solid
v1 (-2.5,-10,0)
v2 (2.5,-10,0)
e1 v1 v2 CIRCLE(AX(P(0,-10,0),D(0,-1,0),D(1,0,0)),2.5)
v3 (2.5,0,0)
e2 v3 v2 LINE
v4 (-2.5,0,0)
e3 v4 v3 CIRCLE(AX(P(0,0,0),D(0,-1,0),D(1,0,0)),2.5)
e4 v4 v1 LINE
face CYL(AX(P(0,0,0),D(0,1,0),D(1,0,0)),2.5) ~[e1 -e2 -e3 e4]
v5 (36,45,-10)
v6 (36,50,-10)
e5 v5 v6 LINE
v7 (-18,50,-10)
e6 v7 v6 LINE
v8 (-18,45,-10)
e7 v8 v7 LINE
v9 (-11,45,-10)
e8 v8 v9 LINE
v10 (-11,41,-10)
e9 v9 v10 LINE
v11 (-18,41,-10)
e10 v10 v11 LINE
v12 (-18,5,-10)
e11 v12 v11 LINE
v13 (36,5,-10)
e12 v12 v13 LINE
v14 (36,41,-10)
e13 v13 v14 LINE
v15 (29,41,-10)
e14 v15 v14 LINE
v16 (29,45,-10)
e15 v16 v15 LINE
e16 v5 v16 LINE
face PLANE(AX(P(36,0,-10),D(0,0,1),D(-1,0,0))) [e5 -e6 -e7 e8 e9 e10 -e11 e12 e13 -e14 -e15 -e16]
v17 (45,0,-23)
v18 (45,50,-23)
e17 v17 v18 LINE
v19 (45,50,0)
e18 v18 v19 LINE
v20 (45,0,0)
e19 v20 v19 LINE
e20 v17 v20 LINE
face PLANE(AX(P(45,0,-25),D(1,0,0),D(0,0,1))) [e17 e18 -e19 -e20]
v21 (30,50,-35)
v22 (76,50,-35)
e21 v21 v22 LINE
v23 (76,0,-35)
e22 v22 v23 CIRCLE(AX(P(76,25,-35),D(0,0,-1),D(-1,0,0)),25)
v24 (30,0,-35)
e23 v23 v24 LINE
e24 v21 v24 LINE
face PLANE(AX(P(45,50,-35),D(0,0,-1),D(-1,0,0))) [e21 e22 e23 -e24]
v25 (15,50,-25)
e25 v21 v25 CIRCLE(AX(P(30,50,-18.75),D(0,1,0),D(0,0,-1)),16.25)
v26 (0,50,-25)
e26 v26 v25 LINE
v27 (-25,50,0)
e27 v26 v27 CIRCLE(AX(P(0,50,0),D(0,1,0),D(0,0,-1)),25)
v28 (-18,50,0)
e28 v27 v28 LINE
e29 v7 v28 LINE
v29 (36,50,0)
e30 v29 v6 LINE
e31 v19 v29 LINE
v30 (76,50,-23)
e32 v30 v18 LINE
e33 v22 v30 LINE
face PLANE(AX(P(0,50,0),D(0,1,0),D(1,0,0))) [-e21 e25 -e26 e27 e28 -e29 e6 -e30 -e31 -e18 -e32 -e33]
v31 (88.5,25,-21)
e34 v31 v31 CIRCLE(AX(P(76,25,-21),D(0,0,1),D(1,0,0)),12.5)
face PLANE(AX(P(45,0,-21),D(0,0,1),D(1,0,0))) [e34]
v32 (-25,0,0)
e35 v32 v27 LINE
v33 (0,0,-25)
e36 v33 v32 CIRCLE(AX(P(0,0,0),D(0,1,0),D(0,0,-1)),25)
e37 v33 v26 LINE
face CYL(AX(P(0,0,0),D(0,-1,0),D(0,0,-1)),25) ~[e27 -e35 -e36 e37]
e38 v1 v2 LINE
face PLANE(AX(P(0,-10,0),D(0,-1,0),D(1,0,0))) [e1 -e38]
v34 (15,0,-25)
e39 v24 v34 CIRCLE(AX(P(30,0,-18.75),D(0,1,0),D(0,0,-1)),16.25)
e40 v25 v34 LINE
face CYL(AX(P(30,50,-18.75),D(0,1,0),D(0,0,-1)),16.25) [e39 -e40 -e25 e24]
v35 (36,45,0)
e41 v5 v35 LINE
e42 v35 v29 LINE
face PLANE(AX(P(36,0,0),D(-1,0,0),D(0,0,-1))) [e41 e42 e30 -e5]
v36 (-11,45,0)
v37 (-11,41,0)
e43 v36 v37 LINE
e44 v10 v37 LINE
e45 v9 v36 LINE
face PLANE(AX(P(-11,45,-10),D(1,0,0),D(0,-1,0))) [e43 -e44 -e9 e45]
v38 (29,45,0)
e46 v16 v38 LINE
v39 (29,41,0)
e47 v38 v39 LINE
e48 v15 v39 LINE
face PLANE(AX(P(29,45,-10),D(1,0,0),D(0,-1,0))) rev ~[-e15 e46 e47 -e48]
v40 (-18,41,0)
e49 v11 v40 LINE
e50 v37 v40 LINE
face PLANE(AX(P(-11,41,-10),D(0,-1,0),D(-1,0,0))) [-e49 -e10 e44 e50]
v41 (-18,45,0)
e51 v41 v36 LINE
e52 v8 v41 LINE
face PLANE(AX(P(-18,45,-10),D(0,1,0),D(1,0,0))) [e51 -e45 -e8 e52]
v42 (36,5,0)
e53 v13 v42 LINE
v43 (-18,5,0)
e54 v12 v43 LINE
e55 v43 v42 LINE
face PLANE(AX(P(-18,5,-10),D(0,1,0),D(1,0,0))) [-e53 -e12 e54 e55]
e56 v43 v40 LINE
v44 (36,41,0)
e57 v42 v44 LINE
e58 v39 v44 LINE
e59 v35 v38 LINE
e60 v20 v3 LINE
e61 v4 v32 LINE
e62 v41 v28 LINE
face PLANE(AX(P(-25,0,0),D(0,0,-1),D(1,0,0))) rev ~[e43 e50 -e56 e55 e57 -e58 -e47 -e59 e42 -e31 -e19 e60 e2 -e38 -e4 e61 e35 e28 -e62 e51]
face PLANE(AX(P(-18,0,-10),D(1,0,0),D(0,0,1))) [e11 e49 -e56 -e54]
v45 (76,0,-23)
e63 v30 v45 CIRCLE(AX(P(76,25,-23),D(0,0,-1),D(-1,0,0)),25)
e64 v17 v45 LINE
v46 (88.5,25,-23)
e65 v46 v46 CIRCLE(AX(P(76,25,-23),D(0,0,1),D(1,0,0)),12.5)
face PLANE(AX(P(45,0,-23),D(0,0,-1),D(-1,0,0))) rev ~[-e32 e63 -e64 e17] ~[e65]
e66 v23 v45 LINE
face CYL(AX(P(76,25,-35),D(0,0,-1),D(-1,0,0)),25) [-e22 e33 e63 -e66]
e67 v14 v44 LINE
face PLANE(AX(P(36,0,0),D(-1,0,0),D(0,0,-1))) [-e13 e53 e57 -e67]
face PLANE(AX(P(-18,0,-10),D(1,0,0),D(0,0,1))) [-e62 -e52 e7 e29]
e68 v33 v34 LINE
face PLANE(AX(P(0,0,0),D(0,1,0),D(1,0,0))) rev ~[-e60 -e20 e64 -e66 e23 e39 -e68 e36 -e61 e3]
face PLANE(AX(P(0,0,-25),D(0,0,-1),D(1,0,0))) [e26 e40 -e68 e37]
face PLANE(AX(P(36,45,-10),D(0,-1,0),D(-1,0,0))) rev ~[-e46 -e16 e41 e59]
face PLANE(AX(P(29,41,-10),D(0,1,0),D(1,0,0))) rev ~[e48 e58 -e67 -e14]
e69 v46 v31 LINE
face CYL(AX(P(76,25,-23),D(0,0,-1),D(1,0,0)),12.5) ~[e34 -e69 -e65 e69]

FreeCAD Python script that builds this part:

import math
import FreeCAD as App
import Part
import Sketcher
from FreeCAD import Vector

doc = App.newDocument("Part")
body = doc.addObject("PartDesign::Body", "Body")

# Sketch on XZ plane
sketch1 = body.newObject("Sketcher::SketchObject", "Sketch")
sketch1.AttachmentSupport = (doc.getObject("XZ_Plane"), [""])
sketch1.MapMode = "FlatFace"
sketch1.addGeometry(Part.LineSegment(Vector(45, -25, 0), Vector(0, -25, 0)), False)
sketch1.addGeometry(Part.ArcOfCircle(Part.Circle(Vector(0, 0, 0), Vector(0, 0, 1), 25), math.radians(180), math.radians(270)), False)
sketch1.addGeometry(Part.LineSegment(Vector(-25, 0, 0), Vector(-18, 0, 0)), False)
sketch1.addGeometry(Part.LineSegment(Vector(-18, 0, 0), Vector(-18, -10, 0)), False)
sketch1.addGeometry(Part.LineSegment(Vector(-18, -10, 0), Vector(36, -10, 0)), False)
sketch1.addGeometry(Part.LineSegment(Vector(36, -10, 0), Vector(36, 0, 0)), False)
sketch1.addGeometry(Part.LineSegment(Vector(36, 0, 0), Vector(45, 0, 0)), False)
sketch1.addGeometry(Part.LineSegment(Vector(45, 0, 0), Vector(45, -25, 0)), False)
sketch1.addConstraint(Sketcher.Constraint("Tangent", 0, 2, 1, 2))
sketch1.addConstraint(Sketcher.Constraint("Coincident", 1, 1, 2, 1))
sketch1.addConstraint(Sketcher.Constraint("Coincident", 2, 2, 3, 1))
sketch1.addConstraint(Sketcher.Constraint("Coincident", 3, 2, 4, 1))
sketch1.addConstraint(Sketcher.Constraint("Coincident", 4, 2, 5, 1))
sketch1.addConstraint(Sketcher.Constraint("Coincident", 5, 2, 6, 1))
sketch1.addConstraint(Sketcher.Constraint("Coincident", 6, 2, 7, 1))
sketch1.addConstraint(Sketcher.Constraint("Coincident", 7, 2, 0, 1))
sketch1.addConstraint(Sketcher.Constraint("Horizontal", 0))
sketch1.addConstraint(Sketcher.Constraint("Horizontal", 2))
sketch1.addConstraint(Sketcher.Constraint("Vertical", 3))
sketch1.addConstraint(Sketcher.Constraint("Horizontal", 4))
sketch1.addConstraint(Sketcher.Constraint("Vertical", 5))
sketch1.addConstraint(Sketcher.Constraint("Horizontal", 6))
sketch1.addConstraint(Sketcher.Constraint("Vertical", 7))
sketch1.addConstraint(Sketcher.Constraint("Coincident", 1, 3, -1, 1))
sketch1.addConstraint(Sketcher.Constraint("PointOnObject", 1, 1, -1))
sketch1.addConstraint(Sketcher.Constraint("PointOnObject", 5, 2, -1))
sketch1.addConstraint(Sketcher.Constraint("Radius", 1, 25.0))
sketch1.addConstraint(Sketcher.Constraint("DistanceX", 0, 2, 0, 1, 45.0))
sketch1.addConstraint(Sketcher.Constraint("DistanceX", 2, 1, 2, 2, 7.0))
sketch1.addConstraint(Sketcher.Constraint("DistanceX", 4, 1, 4, 2, 54.0))
sketch1.addConstraint(Sketcher.Constraint("DistanceY", 3, 2, 3, 1, 10.0))
pad1 = body.newObject("PartDesign::Pad", "Pad")
pad1.Profile = sketch1
pad1.Length = 50
pad1.Reversed = True

# Sketch on XY plane
sketch2 = body.newObject("Sketcher::SketchObject", "Sketch001")
sketch2.AttachmentSupport = (doc.getObject("XY_Plane"), [""])
sketch2.MapMode = "FlatFace"
sketch2.AttachmentOffset = App.Placement(Vector(0, 0, -10), App.Rotation())
sketch2.addGeometry(Part.LineSegment(Vector(36, 5, 0), Vector(-18, 5, 0)), False)
sketch2.addGeometry(Part.LineSegment(Vector(-18, 5, 0), Vector(-18, 0, 0)), False)
sketch2.addGeometry(Part.LineSegment(Vector(-18, 0, 0), Vector(36, 0, 0)), False)
sketch2.addGeometry(Part.LineSegment(Vector(36, 0, 0), Vector(36, 5, 0)), False)
sketch2.addGeometry(Part.LineSegment(Vector(-18, 41, 0), Vector(-11, 41, 0)), False)
sketch2.addGeometry(Part.LineSegment(Vector(-11, 41, 0), Vector(-11, 45, 0)), False)
sketch2.addGeometry(Part.LineSegment(Vector(-11, 45, 0), Vector(-18, 45, 0)), False)
sketch2.addGeometry(Part.LineSegment(Vector(-18, 45, 0), Vector(-18, 41, 0)), False)
sketch2.addGeometry(Part.LineSegment(Vector(29, 45, 0), Vector(29, 41, 0)), False)
sketch2.addGeometry(Part.LineSegment(Vector(29, 41, 0), Vector(36, 41, 0)), False)
sketch2.addGeometry(Part.LineSegment(Vector(36, 41, 0), Vector(36, 45, 0)), False)
sketch2.addGeometry(Part.LineSegment(Vector(36, 45, 0), Vector(29, 45, 0)), False)
sketch2.addConstraint(Sketcher.Constraint("Coincident", 0, 2, 1, 1))
sketch2.addConstraint(Sketcher.Constraint("Coincident", 1, 2, 2, 1))
sketch2.addConstraint(Sketcher.Constraint("Coincident", 2, 2, 3, 1))
sketch2.addConstraint(Sketcher.Constraint("Coincident", 3, 2, 0, 1))
sketch2.addConstraint(Sketcher.Constraint("Coincident", 4, 2, 5, 1))
sketch2.addConstraint(Sketcher.Constraint("Coincident", 5, 2, 6, 1))
sketch2.addConstraint(Sketcher.Constraint("Coincident", 6, 2, 7, 1))
sketch2.addConstraint(Sketcher.Constraint("Coincident", 7, 2, 4, 1))
sketch2.addConstraint(Sketcher.Constraint("Coincident", 8, 2, 9, 1))
sketch2.addConstraint(Sketcher.Constraint("Coincident", 9, 2, 10, 1))
sketch2.addConstraint(Sketcher.Constraint("Coincident", 10, 2, 11, 1))
sketch2.addConstraint(Sketcher.Constraint("Coincident", 11, 2, 8, 1))
sketch2.addConstraint(Sketcher.Constraint("Horizontal", 0))
sketch2.addConstraint(Sketcher.Constraint("Vertical", 1))
sketch2.addConstraint(Sketcher.Constraint("Horizontal", 2))
sketch2.addConstraint(Sketcher.Constraint("Vertical", 3))
sketch2.addConstraint(Sketcher.Constraint("Horizontal", 4))
sketch2.addConstraint(Sketcher.Constraint("Vertical", 5))
sketch2.addConstraint(Sketcher.Constraint("Horizontal", 6))
sketch2.addConstraint(Sketcher.Constraint("Vertical", 7))
sketch2.addConstraint(Sketcher.Constraint("Vertical", 8))
sketch2.addConstraint(Sketcher.Constraint("Horizontal", 9))
sketch2.addConstraint(Sketcher.Constraint("Vertical", 10))
sketch2.addConstraint(Sketcher.Constraint("Horizontal", 11))
sketch2.addConstraint(Sketcher.Constraint("PointOnObject", 1, 2, -1))
sketch2.addConstraint(Sketcher.Constraint("Horizontal", 7, 2, 8, 2))
sketch2.addConstraint(Sketcher.Constraint("Horizontal", 6, 2, 10, 2))
sketch2.addConstraint(Sketcher.Constraint("Vertical", 1, 2, 6, 2))
sketch2.addConstraint(Sketcher.Constraint("Vertical", 3, 2, 9, 2))
sketch2.addConstraint(Sketcher.Constraint("Equal", 6, 9))
sketch2.addConstraint(Sketcher.Constraint("DistanceX", 4, 1, 4, 2, 7.0))
sketch2.addConstraint(Sketcher.Constraint("DistanceY", 1, 2, 1, 1, 5.0))
sketch2.addConstraint(Sketcher.Constraint("DistanceY", 5, 1, 5, 2, 4.0))
sketch2.addConstraint(Sketcher.Constraint("DistanceX", 4, 2, -1, 1, 11.0))
sketch2.addConstraint(Sketcher.Constraint("DistanceY", 0, 2, 5, 2, 40.0))
sketch2.addConstraint(Sketcher.Constraint("DistanceX", 4, 2, 8, 2, 40.0))
pad2 = body.newObject("PartDesign::Pad", "Pad001")
pad2.Profile = sketch2
pad2.Length = 10

# Sketch on XZ plane
sketch3 = body.newObject("Sketcher::SketchObject", "Sketch002")
sketch3.AttachmentSupport = (doc.getObject("XZ_Plane"), [""])
sketch3.MapMode = "FlatFace"
sketch3.addGeometry(Part.LineSegment(Vector(2.5, 0, 0), Vector(-2.5, 0, 0)), False)
sketch3.addGeometry(Part.ArcOfCircle(Part.Circle(Vector(0, 0, 0), Vector(0, 0, 1), 2.5), math.radians(180), math.radians(360)), False)
sketch3.addConstraint(Sketcher.Constraint("Coincident", 0, 1, 1, 2))
sketch3.addConstraint(Sketcher.Constraint("Coincident", 1, 1, 0, 2))
sketch3.addConstraint(Sketcher.Constraint("Horizontal", 0))
sketch3.addConstraint(Sketcher.Constraint("Coincident", 1, 3, -1, 1))
sketch3.addConstraint(Sketcher.Constraint("PointOnObject", 0, 1, -1))
sketch3.addConstraint(Sketcher.Constraint("Radius", 1, 2.5))
pad3 = body.newObject("PartDesign::Pad", "Pad002")
pad3.Profile = sketch3
pad3.Length = 10

# Sketch on XY plane
sketch4 = body.newObject("Sketcher::SketchObject", "Sketch003")
sketch4.AttachmentSupport = (doc.getObject("XY_Plane"), [""])
sketch4.MapMode = "FlatFace"
sketch4.AttachmentOffset = App.Placement(Vector(0, 0, -35), App.Rotation())
sketch4.addGeometry(Part.ArcOfCircle(Part.Circle(Vector(76, 25, 0), Vector(0, 0, 1), 25), math.radians(-90), math.radians(90)), False)
sketch4.addGeometry(Part.LineSegment(Vector(76, 0, 0), Vector(45, 0, 0)), False)
sketch4.addGeometry(Part.LineSegment(Vector(45, 0, 0), Vector(45, 50, 0)), False)
sketch4.addGeometry(Part.LineSegment(Vector(45, 50, 0), Vector(76, 50, 0)), False)
sketch4.addConstraint(Sketcher.Constraint("Tangent", 0, 1, 1, 1))
sketch4.addConstraint(Sketcher.Constraint("Coincident", 1, 2, 2, 1))
sketch4.addConstraint(Sketcher.Constraint("Coincident", 2, 2, 3, 1))
sketch4.addConstraint(Sketcher.Constraint("Tangent", 3, 2, 0, 2))
sketch4.addConstraint(Sketcher.Constraint("Horizontal", 1))
sketch4.addConstraint(Sketcher.Constraint("Vertical", 2))
sketch4.addConstraint(Sketcher.Constraint("Horizontal", 3))
sketch4.addConstraint(Sketcher.Constraint("PointOnObject", 0, 1, -1))
sketch4.addConstraint(Sketcher.Constraint("Radius", 0, 25.0))
sketch4.addConstraint(Sketcher.Constraint("DistanceX", 1, 2, 1, 1, 31.0))
sketch4.addConstraint(Sketcher.Constraint("DistanceX", -1, 1, 0, 3, 76.0))
pad4 = body.newObject("PartDesign::Pad", "Pad003")
pad4.Profile = sketch4
pad4.Length = 12

# Sketch on XZ plane
sketch5 = body.newObject("Sketcher::SketchObject", "Sketch004")
sketch5.AttachmentSupport = (doc.getObject("XZ_Plane"), [""])
sketch5.MapMode = "FlatFace"
sketch5.AttachmentOffset = App.Placement(Vector(0, 0, -50), App.Rotation())
sketch5.addGeometry(Part.LineSegment(Vector(45, -25, 0), Vector(45, -35, 0)), False)
sketch5.addGeometry(Part.LineSegment(Vector(45, -35, 0), Vector(30, -35, 0)), False)
sketch5.addGeometry(Part.ArcOfCircle(Part.Circle(Vector(30, -19, 0), Vector(0, 0, 1), 16), math.radians(-157), math.radians(-90)), False)
sketch5.addGeometry(Part.LineSegment(Vector(15, -25, 0), Vector(45, -25, 0)), False)
sketch5.addConstraint(Sketcher.Constraint("Coincident", 0, 2, 1, 1))
sketch5.addConstraint(Sketcher.Constraint("Tangent", 1, 2, 2, 2))
sketch5.addConstraint(Sketcher.Constraint("Coincident", 2, 1, 3, 1))
sketch5.addConstraint(Sketcher.Constraint("Coincident", 3, 2, 0, 1))
sketch5.addConstraint(Sketcher.Constraint("Vertical", 0))
sketch5.addConstraint(Sketcher.Constraint("Horizontal", 1))
sketch5.addConstraint(Sketcher.Constraint("Horizontal", 3))
sketch5.addConstraint(Sketcher.Constraint("DistanceX", 1, 2, 1, 1, 15.0))
sketch5.addConstraint(Sketcher.Constraint("DistanceY", 0, 2, 0, 1, 10.0))
sketch5.addConstraint(Sketcher.Constraint("DistanceX", -1, 1, 2, 1, 15.0))
sketch5.addConstraint(Sketcher.Constraint("DistanceX", 2, 1, 2, 3, 15.0))
sketch5.addConstraint(Sketcher.Constraint("DistanceY", 0, 2, -1, 1, 35.0))
pad5 = body.newObject("PartDesign::Pad", "Pad004")
pad5.Profile = sketch5
pad5.Length = 50

# Sketch on XY plane
sketch6 = body.newObject("Sketcher::SketchObject", "Sketch005")
sketch6.AttachmentSupport = (doc.getObject("XY_Plane"), [""])
sketch6.MapMode = "FlatFace"
sketch6.AttachmentOffset = App.Placement(Vector(0, 0, -23), App.Rotation())
sketch6.addGeometry(Part.Circle(Vector(76, 25, 0), Vector(0, 0, 1), 12), False)
sketch6.addConstraint(Sketcher.Constraint("Diameter", 0, 25.0))
sketch6.addConstraint(Sketcher.Constraint("DistanceY", -1, 1, 0, 3, 25.0))
sketch6.addConstraint(Sketcher.Constraint("DistanceX", -1, 1, 0, 3, 76.0))
pad6 = body.newObject("PartDesign::Pad", "Pad005")
pad6.Profile = sketch6
pad6.Length = 2

doc.recompute()
